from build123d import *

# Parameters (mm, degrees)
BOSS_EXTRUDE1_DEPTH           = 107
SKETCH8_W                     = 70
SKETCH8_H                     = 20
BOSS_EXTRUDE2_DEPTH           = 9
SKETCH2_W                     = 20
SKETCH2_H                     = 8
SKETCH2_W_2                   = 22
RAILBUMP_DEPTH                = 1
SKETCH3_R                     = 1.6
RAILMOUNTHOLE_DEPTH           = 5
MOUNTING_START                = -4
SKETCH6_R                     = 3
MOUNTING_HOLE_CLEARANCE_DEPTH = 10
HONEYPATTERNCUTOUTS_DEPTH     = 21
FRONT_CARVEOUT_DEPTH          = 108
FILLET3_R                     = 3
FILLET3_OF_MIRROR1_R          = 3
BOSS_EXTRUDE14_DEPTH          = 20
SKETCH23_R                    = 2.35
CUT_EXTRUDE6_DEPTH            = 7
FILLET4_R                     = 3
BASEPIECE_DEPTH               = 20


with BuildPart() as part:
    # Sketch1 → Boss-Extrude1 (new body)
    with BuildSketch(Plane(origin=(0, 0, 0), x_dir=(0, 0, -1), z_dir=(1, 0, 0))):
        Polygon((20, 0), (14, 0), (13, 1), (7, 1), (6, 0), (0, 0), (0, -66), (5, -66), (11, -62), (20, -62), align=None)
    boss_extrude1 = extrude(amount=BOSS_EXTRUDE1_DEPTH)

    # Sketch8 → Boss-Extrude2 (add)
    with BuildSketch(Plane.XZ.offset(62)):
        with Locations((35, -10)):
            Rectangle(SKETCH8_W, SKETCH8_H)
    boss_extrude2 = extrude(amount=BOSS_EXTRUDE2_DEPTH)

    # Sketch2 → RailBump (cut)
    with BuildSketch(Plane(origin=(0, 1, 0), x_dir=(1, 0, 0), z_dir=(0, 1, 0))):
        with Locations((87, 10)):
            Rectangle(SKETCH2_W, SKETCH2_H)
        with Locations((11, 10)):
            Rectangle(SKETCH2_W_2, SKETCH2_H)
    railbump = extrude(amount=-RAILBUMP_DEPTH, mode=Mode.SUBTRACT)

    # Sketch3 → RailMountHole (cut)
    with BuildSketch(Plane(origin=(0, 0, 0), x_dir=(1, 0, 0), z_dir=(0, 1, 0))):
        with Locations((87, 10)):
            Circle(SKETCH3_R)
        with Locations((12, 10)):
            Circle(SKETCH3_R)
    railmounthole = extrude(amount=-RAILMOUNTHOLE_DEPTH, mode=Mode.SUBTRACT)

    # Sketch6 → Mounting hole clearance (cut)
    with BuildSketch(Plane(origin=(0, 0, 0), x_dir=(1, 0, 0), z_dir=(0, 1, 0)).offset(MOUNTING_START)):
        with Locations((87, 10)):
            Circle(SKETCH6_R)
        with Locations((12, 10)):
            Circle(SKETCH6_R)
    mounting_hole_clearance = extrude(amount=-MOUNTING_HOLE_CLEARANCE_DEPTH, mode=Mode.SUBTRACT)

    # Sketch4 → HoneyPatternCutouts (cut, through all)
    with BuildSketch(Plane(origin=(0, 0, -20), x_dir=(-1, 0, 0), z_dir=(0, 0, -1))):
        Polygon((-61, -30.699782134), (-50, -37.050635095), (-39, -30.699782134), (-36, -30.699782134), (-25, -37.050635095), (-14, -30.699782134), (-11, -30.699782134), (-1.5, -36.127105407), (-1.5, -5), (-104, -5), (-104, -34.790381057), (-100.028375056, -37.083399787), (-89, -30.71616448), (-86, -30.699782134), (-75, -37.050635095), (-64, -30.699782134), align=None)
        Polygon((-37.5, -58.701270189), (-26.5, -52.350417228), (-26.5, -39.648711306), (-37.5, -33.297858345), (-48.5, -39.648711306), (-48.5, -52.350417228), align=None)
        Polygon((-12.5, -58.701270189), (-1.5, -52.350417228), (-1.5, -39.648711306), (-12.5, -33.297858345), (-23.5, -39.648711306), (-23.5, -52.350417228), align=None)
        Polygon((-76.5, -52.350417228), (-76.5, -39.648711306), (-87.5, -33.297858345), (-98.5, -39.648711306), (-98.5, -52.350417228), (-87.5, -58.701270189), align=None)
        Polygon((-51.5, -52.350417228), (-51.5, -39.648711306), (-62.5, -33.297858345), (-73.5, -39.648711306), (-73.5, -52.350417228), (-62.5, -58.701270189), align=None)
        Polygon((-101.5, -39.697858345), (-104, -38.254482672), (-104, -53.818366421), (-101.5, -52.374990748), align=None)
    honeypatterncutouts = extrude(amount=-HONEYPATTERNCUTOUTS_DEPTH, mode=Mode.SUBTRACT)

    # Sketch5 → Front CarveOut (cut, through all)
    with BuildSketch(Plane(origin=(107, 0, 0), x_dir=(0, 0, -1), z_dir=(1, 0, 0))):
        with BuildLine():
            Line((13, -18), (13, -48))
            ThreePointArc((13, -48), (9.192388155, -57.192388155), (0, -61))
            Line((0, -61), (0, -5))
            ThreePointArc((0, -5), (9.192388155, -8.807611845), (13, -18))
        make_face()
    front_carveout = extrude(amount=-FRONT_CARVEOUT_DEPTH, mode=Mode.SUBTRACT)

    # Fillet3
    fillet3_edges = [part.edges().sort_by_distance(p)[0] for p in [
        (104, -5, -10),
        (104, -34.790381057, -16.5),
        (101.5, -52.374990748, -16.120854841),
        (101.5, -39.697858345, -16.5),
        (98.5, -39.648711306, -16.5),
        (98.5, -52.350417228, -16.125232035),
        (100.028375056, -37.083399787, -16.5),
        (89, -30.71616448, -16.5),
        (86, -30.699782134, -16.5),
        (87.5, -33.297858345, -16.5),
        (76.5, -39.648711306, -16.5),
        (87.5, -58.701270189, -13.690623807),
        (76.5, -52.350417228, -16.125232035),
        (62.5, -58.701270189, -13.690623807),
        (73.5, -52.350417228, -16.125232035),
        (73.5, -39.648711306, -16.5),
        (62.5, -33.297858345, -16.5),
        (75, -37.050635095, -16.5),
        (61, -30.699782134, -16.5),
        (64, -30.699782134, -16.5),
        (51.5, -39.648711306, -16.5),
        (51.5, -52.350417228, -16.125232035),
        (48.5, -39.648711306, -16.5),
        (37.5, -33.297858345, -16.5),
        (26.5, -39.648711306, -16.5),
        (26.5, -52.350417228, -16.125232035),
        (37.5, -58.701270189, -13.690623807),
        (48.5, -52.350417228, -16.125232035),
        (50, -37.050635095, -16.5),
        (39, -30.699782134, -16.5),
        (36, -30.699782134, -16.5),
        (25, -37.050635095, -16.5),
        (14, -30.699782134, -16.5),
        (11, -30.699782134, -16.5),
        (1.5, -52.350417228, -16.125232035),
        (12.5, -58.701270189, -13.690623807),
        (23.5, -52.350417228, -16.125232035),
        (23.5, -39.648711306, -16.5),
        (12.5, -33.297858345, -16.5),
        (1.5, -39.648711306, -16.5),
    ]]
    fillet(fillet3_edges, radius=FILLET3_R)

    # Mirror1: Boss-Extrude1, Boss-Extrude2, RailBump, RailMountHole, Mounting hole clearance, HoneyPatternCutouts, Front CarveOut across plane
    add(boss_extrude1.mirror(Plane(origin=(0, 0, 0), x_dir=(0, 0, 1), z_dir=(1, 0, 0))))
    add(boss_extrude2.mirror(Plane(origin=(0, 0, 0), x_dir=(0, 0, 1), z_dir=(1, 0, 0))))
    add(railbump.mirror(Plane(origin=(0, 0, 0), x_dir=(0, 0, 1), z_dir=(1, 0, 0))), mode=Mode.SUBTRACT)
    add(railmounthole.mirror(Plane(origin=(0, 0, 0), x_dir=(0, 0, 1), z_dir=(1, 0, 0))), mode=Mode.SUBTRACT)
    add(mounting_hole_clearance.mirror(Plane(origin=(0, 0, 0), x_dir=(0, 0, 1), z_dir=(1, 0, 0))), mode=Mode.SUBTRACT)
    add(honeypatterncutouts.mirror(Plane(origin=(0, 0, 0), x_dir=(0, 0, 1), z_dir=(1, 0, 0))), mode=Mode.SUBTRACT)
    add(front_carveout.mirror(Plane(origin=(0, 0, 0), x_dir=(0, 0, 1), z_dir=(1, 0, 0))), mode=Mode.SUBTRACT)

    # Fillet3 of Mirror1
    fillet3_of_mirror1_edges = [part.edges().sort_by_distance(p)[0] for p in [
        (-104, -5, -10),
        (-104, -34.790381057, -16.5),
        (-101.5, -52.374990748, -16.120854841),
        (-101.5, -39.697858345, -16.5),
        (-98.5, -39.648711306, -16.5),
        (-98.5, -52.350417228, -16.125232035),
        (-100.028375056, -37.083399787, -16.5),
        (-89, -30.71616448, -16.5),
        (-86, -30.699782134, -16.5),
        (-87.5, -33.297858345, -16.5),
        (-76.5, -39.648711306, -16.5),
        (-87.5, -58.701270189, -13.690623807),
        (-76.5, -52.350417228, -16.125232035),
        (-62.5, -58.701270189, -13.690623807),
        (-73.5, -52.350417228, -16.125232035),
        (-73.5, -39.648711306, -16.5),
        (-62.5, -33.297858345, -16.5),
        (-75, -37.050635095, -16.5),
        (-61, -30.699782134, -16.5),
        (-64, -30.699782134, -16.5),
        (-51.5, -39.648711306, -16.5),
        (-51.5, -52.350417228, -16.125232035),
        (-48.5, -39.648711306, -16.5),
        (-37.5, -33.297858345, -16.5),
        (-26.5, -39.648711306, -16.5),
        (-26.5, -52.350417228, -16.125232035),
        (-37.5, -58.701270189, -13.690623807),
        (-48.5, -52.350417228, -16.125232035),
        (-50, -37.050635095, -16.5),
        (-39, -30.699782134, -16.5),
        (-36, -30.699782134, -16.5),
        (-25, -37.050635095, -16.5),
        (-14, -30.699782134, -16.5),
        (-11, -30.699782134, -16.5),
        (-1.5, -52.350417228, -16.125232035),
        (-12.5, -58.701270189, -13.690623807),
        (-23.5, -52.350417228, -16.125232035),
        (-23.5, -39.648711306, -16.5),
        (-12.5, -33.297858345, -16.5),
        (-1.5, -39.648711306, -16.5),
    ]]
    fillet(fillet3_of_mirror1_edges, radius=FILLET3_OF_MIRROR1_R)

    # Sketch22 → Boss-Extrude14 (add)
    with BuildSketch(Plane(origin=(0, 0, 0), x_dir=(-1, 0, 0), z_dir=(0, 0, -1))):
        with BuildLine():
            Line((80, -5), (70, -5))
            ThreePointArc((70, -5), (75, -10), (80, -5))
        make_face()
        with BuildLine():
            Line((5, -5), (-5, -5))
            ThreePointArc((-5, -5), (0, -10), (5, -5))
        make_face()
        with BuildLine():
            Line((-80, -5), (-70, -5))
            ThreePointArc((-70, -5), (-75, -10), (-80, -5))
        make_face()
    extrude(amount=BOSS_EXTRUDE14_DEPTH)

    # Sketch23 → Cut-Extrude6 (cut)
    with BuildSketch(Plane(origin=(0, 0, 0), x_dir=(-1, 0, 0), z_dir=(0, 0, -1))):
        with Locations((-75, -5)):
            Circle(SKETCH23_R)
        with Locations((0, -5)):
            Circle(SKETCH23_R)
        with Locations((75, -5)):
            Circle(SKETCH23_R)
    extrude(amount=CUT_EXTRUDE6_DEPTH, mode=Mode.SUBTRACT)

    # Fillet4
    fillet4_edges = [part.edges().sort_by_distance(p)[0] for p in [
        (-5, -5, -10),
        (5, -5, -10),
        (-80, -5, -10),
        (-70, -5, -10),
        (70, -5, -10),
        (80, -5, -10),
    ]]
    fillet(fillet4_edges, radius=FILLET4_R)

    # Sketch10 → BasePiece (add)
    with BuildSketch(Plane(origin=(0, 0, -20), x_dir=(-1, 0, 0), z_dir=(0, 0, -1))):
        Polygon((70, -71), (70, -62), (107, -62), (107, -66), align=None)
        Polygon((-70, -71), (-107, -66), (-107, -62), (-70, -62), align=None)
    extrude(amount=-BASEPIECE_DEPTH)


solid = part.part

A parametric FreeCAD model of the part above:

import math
import FreeCAD as App
import Part
import Sketcher
from FreeCAD import Vector
Q = App.Units.Quantity


def edges_at(feature, points):
    """Names of the edges that pass closest to the given points."""
    edges = feature.Shape.Edges
    near = lambda p: min(range(len(edges)), key=lambda i: edges[i].distToShape(Part.Vertex(*p))[0])
    return sorted({f"Edge{near(p) + 1}" for p in points})


def add_polygon(sketch, points):
    """Adds a closed chain of lines whose ends are joined by coincident constraints."""
    first, n = sketch.GeometryCount, len(points)
    for a, b in zip(points, points[1:] + points[:1]):
        sketch.addGeometry(Part.LineSegment(App.Vector(*a, 0), App.Vector(*b, 0)), False)
    for i in range(n):
        sketch.addConstraint(Sketcher.Constraint("Coincident", first + i, 2, first + (i + 1) % n, 1))

doc = App.newDocument("Part")
body = doc.addObject("PartDesign::Body", "Body")

# Sketch on YZ plane
sketch1 = body.newObject("Sketcher::SketchObject", "Sketch")
sketch1.AttachmentSupport = (doc.getObject("YZ_Plane"), [""])
sketch1.MapMode = "FlatFace"
add_polygon(sketch1, [(0, -20), (0, -14), (1, -13), (1, -7), (0, -6), (0, 0), (-66, 0), (-66, -5), (-62, -11), (-62, -20)])  # lines 0-9
sketch1.addConstraint([
    Sketcher.Constraint("Vertical", 0),
    Sketcher.Constraint("Vertical", 2),
    Sketcher.Constraint("Vertical", 4),
    Sketcher.Constraint("Horizontal", 5),
    Sketcher.Constraint("Vertical", 6),
    Sketcher.Constraint("Vertical", 8),
    Sketcher.Constraint("Horizontal", 9),
    Sketcher.Constraint("Coincident", 4, 2, -1, 1),
    Sketcher.Constraint("PointOnObject", 0, 2, -2),
    Sketcher.Constraint("Perpendicular", 1, 3),
    Sketcher.Constraint("Equal", 0, 2),
    Sketcher.Constraint("Equal", 2, 4),
    Sketcher.Constraint("Equal", 1, 3),
    Sketcher.Constraint("DistanceX", 5, 2, 5, 1, Q("66 mm")),
    Sketcher.Constraint("DistanceX", 9, 1, 9, 2, Q("62 mm")),
    Sketcher.Constraint("DistanceY", 0, 1, 0, 2, Q("6 mm")),
    Sketcher.Constraint("DistanceY", 6, 2, 6, 1, Q("5 mm")),
    Sketcher.Constraint("DistanceY", 8, 2, 8, 1, Q("9 mm")),
    Sketcher.Constraint("DistanceY", 0, 2, -1, 1, Q("14 mm")),
])
pad1 = body.newObject("PartDesign::Pad", "Pad")
pad1.Profile = sketch1
pad1.Length = 107

# Sketch on XZ plane
sketch2 = body.newObject("Sketcher::SketchObject", "Sketch001")
sketch2.AttachmentSupport = (doc.getObject("XZ_Plane"), [""])
sketch2.MapMode = "FlatFace"
sketch2.AttachmentOffset = App.Placement(Vector(0, 0, 62), App.Rotation())
add_polygon(sketch2, [(0, 0), (0, -20), (70, -20), (70, 0)])  # lines 0-3
sketch2.addConstraint([
    Sketcher.Constraint("Vertical", 0),
    Sketcher.Constraint("Horizontal", 1),
    Sketcher.Constraint("Vertical", 2),
    Sketcher.Constraint("Horizontal", 3),
    Sketcher.Constraint("Coincident", 3, 2, -1, 1),
    Sketcher.Constraint("DistanceX", 1, 1, 1, 2, Q("70 mm")),
    Sketcher.Constraint("DistanceY", 0, 2, 0, 1, Q("20 mm")),
])
pad2 = body.newObject("PartDesign::Pad", "Pad001")
pad2.Profile = sketch2
pad2.Length = 9

# Sketch on XZ plane
sketch3 = body.newObject("Sketcher::SketchObject", "Sketch002")
sketch3.AttachmentSupport = (doc.getObject("XZ_Plane"), [""])
sketch3.MapMode = "FlatFace"
sketch3.AttachmentOffset = App.Placement(Vector(0, 0, -1), App.Rotation())
add_polygon(sketch3, [(77, -14), (77, -6), (97, -6), (97, -14)])  # lines 0-3
add_polygon(sketch3, [(0, -14), (0, -6), (22, -6), (22, -14)])  # lines 4-7
sketch3.addConstraint([
    Sketcher.Constraint("Vertical", 0),
    Sketcher.Constraint("Horizontal", 1),
    Sketcher.Constraint("Vertical", 2),
    Sketcher.Constraint("Horizontal", 3),
    Sketcher.Constraint("Vertical", 4),
    Sketcher.Constraint("Horizontal", 5),
    Sketcher.Constraint("Vertical", 6),
    Sketcher.Constraint("Horizontal", 7),
    Sketcher.Constraint("PointOnObject", 4, 2, -2),
    Sketcher.Constraint("Horizontal", 1, 2, 4, 2),
    Sketcher.Constraint("Horizontal", 3, 2, 6, 2),
    Sketcher.Constraint("DistanceX", 1, 1, 1, 2, Q("20 mm")),
    Sketcher.Constraint("DistanceX", 5, 1, 5, 2, Q("22 mm")),
    Sketcher.Constraint("DistanceY", 0, 1, 0, 2, Q("8 mm")),
    Sketcher.Constraint("DistanceX", -1, 1, 0, 2, Q("77 mm")),
    Sketcher.Constraint("DistanceY", 0, 2, -1, 1, Q("6 mm")),
])
pocket1 = body.newObject("PartDesign::Pocket", "Pocket")
pocket1.Profile = sketch3
pocket1.Length = 1
pocket1.Reversed = True

# Sketch on XZ plane
sketch4 = body.newObject("Sketcher::SketchObject", "Sketch003")
sketch4.AttachmentSupport = (doc.getObject("XZ_Plane"), [""])
sketch4.MapMode = "FlatFace"
sketch4.addGeometry([
    Part.Circle(Vector(87, -10, 0), Vector(0, 0, 1), 1.6),
    Part.Circle(Vector(12, -10, 0), Vector(0, 0, 1), 1.6),
], False)
sketch4.addConstraint([
    Sketcher.Constraint("Equal", 0, 1),
    Sketcher.Constraint("Horizontal", 0, 3, 1, 3),
    Sketcher.Constraint("Diameter", 0, Q("3.2 mm")),
    Sketcher.Constraint("DistanceX", -1, 1, 0, 3, Q("87 mm")),
    Sketcher.Constraint("DistanceY", 0, 3, -1, 1, Q("10 mm")),
    Sketcher.Constraint("DistanceX", -1, 1, 1, 3, Q("12 mm")),
])
pocket2 = body.newObject("PartDesign::Pocket", "Pocket001")
pocket2.Profile = sketch4
pocket2.Length = 5
pocket2.Reversed = True

# Sketch on XZ plane
sketch5 = body.newObject("Sketcher::SketchObject", "Sketch004")
sketch5.AttachmentSupport = (doc.getObject("XZ_Plane"), [""])
sketch5.MapMode = "FlatFace"
sketch5.AttachmentOffset = App.Placement(Vector(0, 0, 4), App.Rotation())
sketch5.addGeometry([
    Part.Circle(Vector(87, -10, 0), Vector(0, 0, 1), 3),
    Part.Circle(Vector(12, -10, 0), Vector(0, 0, 1), 3),
], False)
sketch5.addConstraint([
    Sketcher.Constraint("Equal", 0, 1),
    Sketcher.Constraint("Horizontal", 0, 3, 1, 3),
    Sketcher.Constraint("Diameter", 0, Q("6 mm")),
    Sketcher.Constraint("DistanceX", -1, 1, 0, 3, Q("87 mm")),
    Sketcher.Constraint("DistanceY", 0, 3, -1, 1, Q("10 mm")),
    Sketcher.Constraint("DistanceX", -1, 1, 1, 3, Q("12 mm")),
])
pocket3 = body.newObject("PartDesign::Pocket", "Pocket002")
pocket3.Profile = sketch5
pocket3.Length = 10
pocket3.Reversed = True

# Sketch on XY plane
sketch6 = body.newObject("Sketcher::SketchObject", "Sketch005")
sketch6.AttachmentSupport = (doc.getObject("XY_Plane"), [""])
sketch6.MapMode = "FlatFace"
sketch6.AttachmentOffset = App.Placement(Vector(0, 0, -20), App.Rotation())
add_polygon(sketch6, [(61, -30.699782), (50, -37.050635), (39, -30.699782), (36, -30.699782), (25, -37.050635), (14, -30.699782), (11, -30.699782), (1.5, -36.127105), (1.5, -5), (104, -5), (104, -34.790381), (100.028375, -37.0834), (89, -30.716164), (86, -30.699782), (75, -37.050635), (64, -30.699782)])  # lines 0-15
add_polygon(sketch6, [(37.5, -58.70127), (26.5, -52.350417), (26.5, -39.648711), (37.5, -33.297858), (48.5, -39.648711), (48.5, -52.350417)])  # lines 16-21
add_polygon(sketch6, [(12.5, -58.70127), (1.5, -52.350417), (1.5, -39.648711), (12.5, -33.297858), (23.5, -39.648711), (23.5, -52.350417)])  # lines 22-27
add_polygon(sketch6, [(76.5, -52.350417), (76.5, -39.648711), (87.5, -33.297858), (98.5, -39.648711), (98.5, -52.350417), (87.5, -58.70127)])  # lines 28-33
add_polygon(sketch6, [(51.5, -52.350417), (51.5, -39.648711), (62.5, -33.297858), (73.5, -39.648711), (73.5, -52.350417), (62.5, -58.70127)])  # lines 34-39
add_polygon(sketch6, [(101.5, -39.697858), (104, -38.254483), (104, -53.818366), (101.5, -52.374991)])  # lines 40-43
sketch6.addConstraint([
    Sketcher.Constraint("Horizontal", 2),
    Sketcher.Constraint("Horizontal", 5),
    Sketcher.Constraint("Vertical", 7),
    Sketcher.Constraint("Horizontal", 8),
    Sketcher.Constraint("Vertical", 9),
    Sketcher.Constraint("Horizontal", 15),
    Sketcher.Constraint("Vertical", 17),
    Sketcher.Constraint("Vertical", 20),
    Sketcher.Constraint("Vertical", 23),
    Sketcher.Constraint("Vertical", 26),
    Sketcher.Constraint("Vertical", 28),
    Sketcher.Constraint("Vertical", 31),
    Sketcher.Constraint("Vertical", 34),
    Sketcher.Constraint("Vertical", 37),
    Sketcher.Constraint("Vertical", 41),
    Sketcher.Constraint("Vertical", 43),
    Sketcher.Constraint("Parallel", 0, 3),
    Sketcher.Constraint("Parallel", 1, 4),
    Sketcher.Constraint("Parallel", 3, 10),
    Sketcher.Constraint("Parallel", 4, 11),
    Sketcher.Constraint("Parallel", 10, 13),
    Sketcher.Constraint("Parallel", 11, 14),
    Sketcher.Constraint("Parallel", 14, 16),
    Sketcher.Constraint("Parallel", 13, 18),
    Sketcher.Constraint("Parallel", 16, 19),
    Sketcher.Constraint("Parallel", 18, 21),
    Sketcher.Constraint("Parallel", 19, 22),
    Sketcher.Constraint("Parallel", 21, 24),
    Sketcher.Constraint("Parallel", 22, 25),
    Sketcher.Constraint("Parallel", 24, 27),
    Sketcher.Constraint("Parallel", 27, 29),
    Sketcher.Constraint("Parallel", 25, 30),
    Sketcher.Constraint("Parallel", 29, 32),
    Sketcher.Constraint("Parallel", 30, 33),
    Sketcher.Constraint("Parallel", 32, 35),
    Sketcher.Constraint("Parallel", 33, 36),
    Sketcher.Constraint("Parallel", 35, 38),
    Sketcher.Constraint("Parallel", 36, 39),
    Sketcher.Constraint("Parallel", 38, 40),
    Sketcher.Constraint("Parallel", 39, 42),
    Sketcher.Constraint("Horizontal", 0, 2, 3, 2),
    Sketcher.Constraint("Horizontal", 2, 2, 4, 2),
    Sketcher.Constraint("Horizontal", 5, 2, 12, 2),
    Sketcher.Constraint("Horizontal", 3, 2, 13, 2),
    Sketcher.Constraint("Horizontal", 12, 2, 14, 2),
    Sketcher.Constraint("Horizontal", 17, 2, 19, 2),
    Sketcher.Constraint("Horizontal", 16, 2, 20, 2),
    Sketcher.Constraint("Horizontal", 20, 2, 22, 2),
    Sketcher.Constraint("Horizontal", 19, 2, 23, 2),
    Sketcher.Constraint("Horizontal", 18, 2, 24, 2),
    Sketcher.Constraint("Horizontal", 23, 2, 25, 2),
    Sketcher.Constraint("Horizontal", 22, 2, 26, 2),
    Sketcher.Constraint("Horizontal", 25, 2, 28, 2),
    Sketcher.Constraint("Horizontal", 24, 2, 29, 2),
    Sketcher.Constraint("Horizontal", 28, 2, 30, 2),
    Sketcher.Constraint("Horizontal", 26, 2, 31, 2),
    Sketcher.Constraint("Horizontal", 27, 2, 32, 2),
    Sketcher.Constraint("Horizontal", 30, 2, 34, 2),
    Sketcher.Constraint("Horizontal", 29, 2, 35, 2),
    Sketcher.Constraint("Horizontal", 34, 2, 36, 2),
    Sketcher.Constraint("Horizontal", 33, 2, 37, 2),
    Sketcher.Constraint("Horizontal", 32, 2, 38, 2),
    Sketcher.Constraint("Vertical", 18, 2, 21, 2),
    Sketcher.Constraint("Vertical", 7, 2, 22, 2),
    Sketcher.Constraint("Vertical", 9, 2, 40, 2),
    Sketcher.Constraint("Equal", 2, 5),
    Sketcher.Constraint("Equal", 5, 15),
    Sketcher.Constraint("Equal", 14, 16),
    Sketcher.Constraint("DistanceX", 2, 2, 2, 1, Q("3 mm")),
    Sketcher.Constraint("Angle", 0, Q("-150 deg")),
    Sketcher.Constraint("DistanceX", 8, 1, 8, 2, Q("102.5 mm")),
    Sketcher.Constraint("DistanceX", -1, 1, 0, 2, Q("50 mm")),
    Sketcher.Constraint("DistanceX", -1, 1, 1, 2, Q("39 mm")),
    Sketcher.Constraint("DistanceY", 7, 2, -1, 1, Q("5 mm")),
    Sketcher.Constraint("DistanceX", -1, 1, 8, 2, Q("104 mm")),
    Sketcher.Constraint("DistanceX", -1, 1, 11, 2, Q("89 mm")),
    Sketcher.Constraint("DistanceX", 22, 2, 16, 2, Q("25 mm")),
    Sketcher.Constraint("DistanceX", 19, 2, 34, 2, Q("3 mm")),
    Sketcher.Constraint("DistanceX", 36, 2, 28, 2, Q("3 mm")),
    Sketcher.Constraint("DistanceX", 31, 2, 42, 2, Q("3 mm")),
    Sketcher.Constraint("DistanceY", 9, 2, 9, 1, Q("29.790381 mm")),
    Sketcher.Constraint("DistanceY", 10, 2, -1, 1, Q("37.0834 mm")),
    Sketcher.Constraint("DistanceY", 9, 2, 1, 2, Q("4.090599 mm")),
    Sketcher.Constraint("DistanceY", 40, 2, 9, 2, Q("3.464102 mm")),
    Sketcher.Constraint("DistanceY", 7, 1, 7, 2, Q("31.127105 mm")),
    Sketcher.Constraint("DistanceY", 17, 1, 17, 2, Q("12.701706 mm")),
    Sketcher.Constraint("DistanceY", 41, 2, 41, 1, Q("15.563884 mm")),
    Sketcher.Constraint("DistanceY", 17, 2, -1, 1, Q("39.648711 mm")),
])
pocket4 = body.newObject("PartDesign::Pocket", "Pocket003")
pocket4.Profile = sketch6
pocket4.Type = "ThroughAll"
pocket4.Reversed = True

# Sketch on YZ plane
sketch7 = body.newObject("Sketcher::SketchObject", "Sketch006")
sketch7.AttachmentSupport = (doc.getObject("YZ_Plane"), [""])
sketch7.MapMode = "FlatFace"
sketch7.AttachmentOffset = App.Placement(Vector(0, 0, 107), App.Rotation())
sketch7.addGeometry([
    Part.LineSegment(Vector(-48, -13, 0), Vector(-18, -13, 0)),
    Part.ArcOfCircle(Part.Circle(Vector(-18, 0, 0), Vector(0, 0, 1), 13), math.radians(-90), math.radians(0)),
    Part.LineSegment(Vector(-5, 0, 0), Vector(-61, 0, 0)),
    Part.ArcOfCircle(Part.Circle(Vector(-48, 0, 0), Vector(0, 0, 1), 13), math.radians(-180), math.radians(-90)),
], False)
sketch7.addConstraint([
    Sketcher.Constraint("Tangent", 0, 2, 1, 1),
    Sketcher.Constraint("Coincident", 1, 2, 2, 1),
    Sketcher.Constraint("Coincident", 2, 2, 3, 1),
    Sketcher.Constraint("Tangent", 3, 2, 0, 1),
    Sketcher.Constraint("Horizontal", 0),
    Sketcher.Constraint("Horizontal", 2),
    Sketcher.Constraint("Equal", 1, 3),
    Sketcher.Constraint("PointOnObject", 1, 3, -1),
    Sketcher.Constraint("PointOnObject", 1, 2, -1),
    Sketcher.Constraint("Radius", 1, Q("13 mm")),
    Sketcher.Constraint("DistanceX", 0, 1, 0, 2, Q("30 mm")),
    Sketcher.Constraint("DistanceX", 1, 3, -1, 1, Q("18 mm")),
])
pocket5 = body.newObject("PartDesign::Pocket", "Pocket004")
pocket5.Profile = sketch7
pocket5.Type = "ThroughAll"
doc.recompute()

fillet = body.newObject("PartDesign::Fillet", "Fillet")
fillet.Base = (pocket5, edges_at(pocket5, [
    (104, -5, -10),
    (104, -34.79, -16.5),
    (101.5, -52.375, -16.121),
    (101.5, -39.698, -16.5),
    (98.5, -39.649, -16.5),
    (98.5, -52.35, -16.125),
    (100.028, -37.083, -16.5),
    (89, -30.716, -16.5),
    (86, -30.7, -16.5),
    (87.5, -33.298, -16.5),
    (76.5, -39.649, -16.5),
    (87.5, -58.701, -13.691),
    (76.5, -52.35, -16.125),
    (62.5, -58.701, -13.691),
    (73.5, -52.35, -16.125),
    (73.5, -39.649, -16.5),
    (62.5, -33.298, -16.5),
    (75, -37.051, -16.5),
    (61, -30.7, -16.5),
    (64, -30.7, -16.5),
    (51.5, -39.649, -16.5),
    (51.5, -52.35, -16.125),
    (48.5, -39.649, -16.5),
    (37.5, -33.298, -16.5),
    (26.5, -39.649, -16.5),
    (26.5, -52.35, -16.125),
    (37.5, -58.701, -13.691),
    (48.5, -52.35, -16.125),
    (50, -37.051, -16.5),
    (39, -30.7, -16.5),
    (36, -30.7, -16.5),
    (25, -37.051, -16.5),
    (14, -30.7, -16.5),
    (11, -30.7, -16.5),
    (1.5, -52.35, -16.125),
    (12.5, -58.701, -13.691),
    (23.5, -52.35, -16.125),
    (23.5, -39.649, -16.5),
    (12.5, -33.298, -16.5),
    (1.5, -39.649, -16.5),
]))
fillet.Radius = 3
doc.recompute()

mirrored = body.newObject("PartDesign::Mirrored", "Mirrored")
mirrored.Originals = [pad1, pad2, pocket1, pocket2, pocket3, pocket4, pocket5]
mirrored.MirrorPlane = (doc.getObject("YZ_Plane"), [""])
body.Tip = mirrored
doc.recompute()

fillet2 = body.newObject("PartDesign::Fillet", "Fillet001")
fillet2.Base = (mirrored, edges_at(mirrored, [
    (-104, -5, -10),
    (-104, -34.79, -16.5),
    (-101.5, -52.375, -16.121),
    (-101.5, -39.698, -16.5),
    (-98.5, -39.649, -16.5),
    (-98.5, -52.35, -16.125),
    (-100.028, -37.083, -16.5),
    (-89, -30.716, -16.5),
    (-86, -30.7, -16.5),
    (-87.5, -33.298, -16.5),
    (-76.5, -39.649, -16.5),
    (-87.5, -58.701, -13.691),
    (-76.5, -52.35, -16.125),
    (-62.5, -58.701, -13.691),
    (-73.5, -52.35, -16.125),
    (-73.5, -39.649, -16.5),
    (-62.5, -33.298, -16.5),
    (-75, -37.051, -16.5),
    (-61, -30.7, -16.5),
    (-64, -30.7, -16.5),
    (-51.5, -39.649, -16.5),
    (-51.5, -52.35, -16.125),
    (-48.5, -39.649, -16.5),
    (-37.5, -33.298, -16.5),
    (-26.5, -39.649, -16.5),
    (-26.5, -52.35, -16.125),
    (-37.5, -58.701, -13.691),
    (-48.5, -52.35, -16.125),
    (-50, -37.051, -16.5),
    (-39, -30.7, -16.5),
    (-36, -30.7, -16.5),
    (-25, -37.051, -16.5),
    (-14, -30.7, -16.5),
    (-11, -30.7, -16.5),
    (-1.5, -52.35, -16.125),
    (-12.5, -58.701, -13.691),
    (-23.5, -52.35, -16.125),
    (-23.5, -39.649, -16.5),
    (-12.5, -33.298, -16.5),
    (-1.5, -39.649, -16.5),
]))
fillet2.Radius = 3

# Sketch on XY plane
sketch8 = body.newObject("Sketcher::SketchObject", "Sketch007")
sketch8.AttachmentSupport = (doc.getObject("XY_Plane"), [""])
sketch8.MapMode = "FlatFace"
sketch8.addGeometry([
    Part.LineSegment(Vector(-80, -5, 0), Vector(-70, -5, 0)),  # 0
    Part.ArcOfCircle(Part.Circle(Vector(-75, -5, 0), Vector(0, 0, 1), 5), math.radians(180), math.radians(360)),  # 1
    Part.LineSegment(Vector(-5, -5, 0), Vector(5, -5, 0)),  # 2
    Part.ArcOfCircle(Part.Circle(Vector(0, -5, 0), Vector(0, 0, 1), 5), math.radians(180), math.radians(360)),  # 3
    Part.LineSegment(Vector(70, -5, 0), Vector(80, -5, 0)),  # 4
    Part.ArcOfCircle(Part.Circle(Vector(75, -5, 0), Vector(0, 0, 1), 5), math.radians(180), math.radians(360)),  # 5
], False)
sketch8.addConstraint([
    Sketcher.Constraint("Coincident", 0, 1, 1, 1),
    Sketcher.Constraint("Coincident", 1, 2, 0, 2),
    Sketcher.Constraint("Coincident", 2, 1, 3, 1),
    Sketcher.Constraint("Coincident", 3, 2, 2, 2),
    Sketcher.Constraint("Coincident", 4, 1, 5, 1),
    Sketcher.Constraint("Coincident", 5, 2, 4, 2),
    Sketcher.Constraint("Horizontal", 0),
    Sketcher.Constraint("Horizontal", 2),
    Sketcher.Constraint("Horizontal", 4),
    Sketcher.Constraint("Equal", 1, 3),
    Sketcher.Constraint("Equal", 3, 5),
    Sketcher.Constraint("Symmetric", 1, 3, 5, 3, -2),
    Sketcher.Constraint("PointOnObject", 3, 3, -2),
    Sketcher.Constraint("Horizontal", 1, 3, 3, 3),
    Sketcher.Constraint("Horizontal", 5, 3, 0, 1),
    Sketcher.Constraint("Horizontal", 1, 2, 2, 1),
    Sketcher.Constraint("Horizontal", 3, 2, 4, 1),
    Sketcher.Constraint("Radius", 1, Q("5 mm")),
    Sketcher.Constraint("DistanceX", 1, 3, -1, 1, Q("75 mm")),
    Sketcher.Constraint("DistanceY", 1, 3, -1, 1, Q("5 mm")),
])
pad3 = body.newObject("PartDesign::Pad", "Pad002")
pad3.Profile = sketch8
pad3.Length = 20
pad3.Reversed = True

# Sketch on XY plane
sketch9 = body.newObject("Sketcher::SketchObject", "Sketch008")
sketch9.AttachmentSupport = (doc.getObject("XY_Plane"), [""])
sketch9.MapMode = "FlatFace"
sketch9.addGeometry([
    Part.Circle(Vector(75, -5, 0), Vector(0, 0, 1), 2.35),
    Part.Circle(Vector(0, -5, 0), Vector(0, 0, 1), 2.35),
    Part.Circle(Vector(-75, -5, 0), Vector(0, 0, 1), 2.35),
], False)
sketch9.addConstraint([
    Sketcher.Constraint("Equal", 0, 1),
    Sketcher.Constraint("Equal", 1, 2),
    Sketcher.Constraint("Symmetric", 0, 3, 2, 3, -2),
    Sketcher.Constraint("PointOnObject", 1, 3, -2),
    Sketcher.Constraint("Horizontal", 0, 3, 1, 3),
    Sketcher.Constraint("Diameter", 0, Q("4.7 mm")),
    Sketcher.Constraint("DistanceX", -1, 1, 0, 3, Q("75 mm")),
    Sketcher.Constraint("DistanceY", 0, 3, -1, 1, Q("5 mm")),
])
pocket6 = body.newObject("PartDesign::Pocket", "Pocket005")
pocket6.Profile = sketch9
pocket6.Length = 7
doc.recompute()

fillet3 = body.newObject("PartDesign::Fillet", "Fillet002")
fillet3.Base = (pocket6, edges_at(pocket6, [
    (-5, -5, -10),
    (5, -5, -10),
    (-80, -5, -10),
    (-70, -5, -10),
    (70, -5, -10),
    (80, -5, -10),
]))
fillet3.Radius = 3

# Sketch on XY plane
sketch10 = body.newObject("Sketcher::SketchObject", "Sketch009")
sketch10.AttachmentSupport = (doc.getObject("XY_Plane"), [""])
sketch10.MapMode = "FlatFace"
sketch10.AttachmentOffset = App.Placement(Vector(0, 0, -20), App.Rotation())
add_polygon(sketch10, [(-70, -62), (-70, -71), (-107, -66), (-107, -62)])  # lines 0-3
add_polygon(sketch10, [(107, -66), (70, -71), (70, -62), (107, -62)])  # lines 4-7
sketch10.addConstraint([
    Sketcher.Constraint("Vertical", 0),
    Sketcher.Constraint("Vertical", 2),
    Sketcher.Constraint("Horizontal", 3),
    Sketcher.Constraint("Vertical", 5),
    Sketcher.Constraint("Horizontal", 6),
    Sketcher.Constraint("Vertical", 7),
    Sketcher.Constraint("Symmetric", 0, 2, 4, 2, -2),
    Sketcher.Constraint("Symmetric", 2, 2, 6, 2, -2),
    Sketcher.Constraint("Horizontal", 1, 2, 7, 2),
    Sketcher.Constraint("DistanceX", 3, 1, 3, 2, Q("37 mm")),
    Sketcher.Constraint("DistanceY", 0, 2, 0, 1, Q("9 mm")),
    Sketcher.Constraint("DistanceY", 2, 1, 2, 2, Q("4 mm")),
    Sketcher.Constraint("DistanceX", 0, 2, -1, 1, Q("70 mm")),
    Sketcher.Constraint("DistanceY", 0, 2, -1, 1, Q("71 mm")),
])
pad4 = body.newObject("PartDesign::Pad", "Pad003")
pad4.Profile = sketch10
pad4.Length = 20

doc.recompute()
